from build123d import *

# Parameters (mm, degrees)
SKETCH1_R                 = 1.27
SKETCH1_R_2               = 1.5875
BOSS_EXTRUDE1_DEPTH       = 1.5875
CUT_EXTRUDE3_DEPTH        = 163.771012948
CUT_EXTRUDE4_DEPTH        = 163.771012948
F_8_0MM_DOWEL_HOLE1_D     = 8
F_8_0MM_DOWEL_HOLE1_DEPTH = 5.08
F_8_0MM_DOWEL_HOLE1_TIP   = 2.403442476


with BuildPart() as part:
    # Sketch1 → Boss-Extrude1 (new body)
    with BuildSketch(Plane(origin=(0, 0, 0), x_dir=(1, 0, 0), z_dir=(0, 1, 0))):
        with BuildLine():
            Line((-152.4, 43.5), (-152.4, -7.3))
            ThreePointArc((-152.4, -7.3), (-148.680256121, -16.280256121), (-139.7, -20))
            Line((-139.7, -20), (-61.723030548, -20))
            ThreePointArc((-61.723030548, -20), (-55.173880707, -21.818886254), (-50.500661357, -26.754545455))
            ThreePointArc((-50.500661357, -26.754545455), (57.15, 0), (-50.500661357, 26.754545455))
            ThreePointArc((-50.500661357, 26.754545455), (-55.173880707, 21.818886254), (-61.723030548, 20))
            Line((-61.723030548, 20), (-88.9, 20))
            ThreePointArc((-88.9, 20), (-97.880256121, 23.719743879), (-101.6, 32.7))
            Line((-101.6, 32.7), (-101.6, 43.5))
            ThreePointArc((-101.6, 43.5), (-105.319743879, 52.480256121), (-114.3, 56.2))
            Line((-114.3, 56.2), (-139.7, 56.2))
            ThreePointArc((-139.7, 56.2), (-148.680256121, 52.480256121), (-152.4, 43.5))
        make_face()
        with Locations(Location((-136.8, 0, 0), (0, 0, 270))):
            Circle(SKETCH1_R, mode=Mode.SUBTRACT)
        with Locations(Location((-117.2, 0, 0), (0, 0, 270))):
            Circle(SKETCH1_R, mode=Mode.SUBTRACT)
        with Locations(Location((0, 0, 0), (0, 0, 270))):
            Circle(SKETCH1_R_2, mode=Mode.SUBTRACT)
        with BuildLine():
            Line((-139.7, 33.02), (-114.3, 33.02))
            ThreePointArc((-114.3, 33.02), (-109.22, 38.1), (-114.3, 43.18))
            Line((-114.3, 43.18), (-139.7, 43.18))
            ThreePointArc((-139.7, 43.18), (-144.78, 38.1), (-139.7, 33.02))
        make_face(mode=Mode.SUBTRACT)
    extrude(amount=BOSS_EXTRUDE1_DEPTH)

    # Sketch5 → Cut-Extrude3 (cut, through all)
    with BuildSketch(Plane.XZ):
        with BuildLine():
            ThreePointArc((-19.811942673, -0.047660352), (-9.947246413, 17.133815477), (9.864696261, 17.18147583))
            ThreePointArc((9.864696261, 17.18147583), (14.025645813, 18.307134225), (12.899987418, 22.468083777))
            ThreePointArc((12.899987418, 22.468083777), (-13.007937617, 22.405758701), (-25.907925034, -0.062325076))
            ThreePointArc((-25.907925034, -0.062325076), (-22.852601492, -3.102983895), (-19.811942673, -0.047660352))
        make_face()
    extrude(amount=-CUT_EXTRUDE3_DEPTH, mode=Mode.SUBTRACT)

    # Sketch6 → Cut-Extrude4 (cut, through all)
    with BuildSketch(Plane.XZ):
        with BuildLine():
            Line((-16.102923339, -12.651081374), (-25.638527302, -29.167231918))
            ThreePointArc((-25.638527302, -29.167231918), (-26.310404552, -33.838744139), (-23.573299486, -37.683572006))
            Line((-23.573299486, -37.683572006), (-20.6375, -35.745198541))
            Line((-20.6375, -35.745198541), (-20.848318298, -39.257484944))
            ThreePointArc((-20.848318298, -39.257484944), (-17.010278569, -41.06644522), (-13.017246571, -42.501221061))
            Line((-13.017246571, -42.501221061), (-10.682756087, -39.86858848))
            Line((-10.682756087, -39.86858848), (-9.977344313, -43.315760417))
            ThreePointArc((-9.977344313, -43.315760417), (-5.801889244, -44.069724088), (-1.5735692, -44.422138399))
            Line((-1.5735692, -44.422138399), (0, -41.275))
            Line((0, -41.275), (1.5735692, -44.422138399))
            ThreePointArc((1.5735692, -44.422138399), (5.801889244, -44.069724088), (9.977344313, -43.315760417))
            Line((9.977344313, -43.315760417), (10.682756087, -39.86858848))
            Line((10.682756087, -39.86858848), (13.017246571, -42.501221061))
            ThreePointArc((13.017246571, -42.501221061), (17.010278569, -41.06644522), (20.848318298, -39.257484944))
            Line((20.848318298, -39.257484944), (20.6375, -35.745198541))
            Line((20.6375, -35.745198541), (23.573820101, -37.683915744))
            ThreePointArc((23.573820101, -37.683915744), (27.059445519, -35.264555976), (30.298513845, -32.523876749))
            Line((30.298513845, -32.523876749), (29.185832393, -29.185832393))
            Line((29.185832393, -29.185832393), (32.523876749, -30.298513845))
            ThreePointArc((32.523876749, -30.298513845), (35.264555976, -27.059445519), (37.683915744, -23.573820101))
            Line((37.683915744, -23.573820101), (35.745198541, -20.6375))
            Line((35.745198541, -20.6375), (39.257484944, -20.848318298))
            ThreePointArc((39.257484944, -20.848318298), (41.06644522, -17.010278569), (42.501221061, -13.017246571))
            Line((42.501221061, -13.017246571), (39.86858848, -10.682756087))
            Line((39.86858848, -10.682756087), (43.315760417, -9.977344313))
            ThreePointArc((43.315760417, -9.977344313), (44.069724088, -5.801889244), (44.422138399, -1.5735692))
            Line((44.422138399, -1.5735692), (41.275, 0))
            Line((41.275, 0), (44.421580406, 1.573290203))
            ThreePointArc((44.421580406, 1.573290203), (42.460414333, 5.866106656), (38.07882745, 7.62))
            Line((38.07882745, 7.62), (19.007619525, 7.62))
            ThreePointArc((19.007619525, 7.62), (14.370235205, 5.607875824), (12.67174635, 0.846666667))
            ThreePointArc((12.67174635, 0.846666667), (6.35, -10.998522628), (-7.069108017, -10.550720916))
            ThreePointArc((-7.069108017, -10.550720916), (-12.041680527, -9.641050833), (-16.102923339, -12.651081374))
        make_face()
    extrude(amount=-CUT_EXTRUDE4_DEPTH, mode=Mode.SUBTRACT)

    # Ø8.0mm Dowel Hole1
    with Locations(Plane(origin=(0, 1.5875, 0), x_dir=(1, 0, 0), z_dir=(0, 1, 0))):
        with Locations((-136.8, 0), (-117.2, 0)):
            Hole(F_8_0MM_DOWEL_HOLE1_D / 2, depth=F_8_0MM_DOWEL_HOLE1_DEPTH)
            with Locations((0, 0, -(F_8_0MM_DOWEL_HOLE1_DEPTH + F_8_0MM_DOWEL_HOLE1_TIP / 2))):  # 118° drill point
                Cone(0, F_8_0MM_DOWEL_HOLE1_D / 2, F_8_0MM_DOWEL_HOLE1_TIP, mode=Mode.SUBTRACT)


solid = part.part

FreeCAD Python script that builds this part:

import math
import FreeCAD as App
import Part
import Sketcher

V = App.Vector
Q = App.Units.Quantity

doc = App.newDocument("Part")
body = doc.addObject("PartDesign::Body", "Body")

# Sketch on XZ plane
sketch1 = body.newObject("Sketcher::SketchObject", "Sketch")
sketch1.AttachmentSupport = (doc.getObject("XZ_Plane"), [""])
sketch1.MapMode = "FlatFace"
sketch1.addGeometry([
    Part.LineSegment(V(-152.4, -43.5, 0), V(-152.4, 7.3, 0)),  # 0
    Part.ArcOfCircle(Part.Circle(V(-139.7, 7.3, 0), V(0, 0, 1), 12.7), math.radians(90), math.radians(180)),  # 1
    Part.LineSegment(V(-139.7, 20, 0), V(-61.7, 20, 0)),  # 2
    Part.ArcOfCircle(Part.Circle(V(-61.7, 32.7, 0), V(0, 0, 1), 12.7), math.radians(-90), math.radians(-28)),  # 3
    Part.ArcOfCircle(Part.Circle(V(0, 0, 0), V(0, 0, 1), 57.1), math.radians(-152), math.radians(152)),  # 4
    Part.ArcOfCircle(Part.Circle(V(-61.7, -32.7, 0), V(0, 0, 1), 12.7), math.radians(28), math.radians(90)),  # 5
    Part.LineSegment(V(-61.7, -20, 0), V(-88.9, -20, 0)),  # 6
    Part.ArcOfCircle(Part.Circle(V(-88.9, -32.7, 0), V(0, 0, 1), 12.7), math.radians(90), math.radians(180)),  # 7
    Part.LineSegment(V(-101.6, -32.7, 0), V(-101.6, -43.5, 0)),  # 8
    Part.ArcOfCircle(Part.Circle(V(-114.3, -43.5, 0), V(0, 0, 1), 12.7), math.radians(-90), math.radians(0)),  # 9
    Part.LineSegment(V(-114.3, -56.2, 0), V(-139.7, -56.2, 0)),  # 10
    Part.ArcOfCircle(Part.Circle(V(-139.7, -43.5, 0), V(0, 0, 1), 12.7), math.radians(180), math.radians(270)),  # 11
    Part.Circle(V(-136.8, 0, 0), V(0, 0, 1), 1.3),  # 12
    Part.Circle(V(-117.2, 0, 0), V(0, 0, 1), 1.3),  # 13
    Part.Circle(V(0, 0, 0), V(0, 0, 1), 1.6),  # 14
    Part.LineSegment(V(-114.3, -33, 0), V(-139.7, -33, 0)),  # 15
    Part.ArcOfCircle(Part.Circle(V(-139.7, -38.1, 0), V(0, 0, 1), 5.1), math.radians(90), math.radians(270)),  # 16
    Part.LineSegment(V(-139.7, -43.2, 0), V(-114.3, -43.2, 0)),  # 17
    Part.ArcOfCircle(Part.Circle(V(-114.3, -38.1, 0), V(0, 0, 1), 5.1), math.radians(-90), math.radians(90)),  # 18
], False)
sketch1.addConstraint([
    Sketcher.Constraint("Tangent", 0, 2, 1, 2),
    Sketcher.Constraint("Tangent", 1, 1, 2, 1),
    Sketcher.Constraint("Tangent", 2, 2, 3, 1),
    Sketcher.Constraint("Tangent", 3, 2, 4, 2),
    Sketcher.Constraint("Tangent", 4, 1, 5, 1),
    Sketcher.Constraint("Tangent", 5, 2, 6, 1),
    Sketcher.Constraint("Tangent", 6, 2, 7, 1),
    Sketcher.Constraint("Tangent", 7, 2, 8, 1),
    Sketcher.Constraint("Tangent", 8, 2, 9, 2),
    Sketcher.Constraint("Tangent", 9, 1, 10, 1),
    Sketcher.Constraint("Tangent", 10, 2, 11, 2),
    Sketcher.Constraint("Tangent", 11, 1, 0, 1),
    Sketcher.Constraint("Tangent", 15, 2, 16, 1),
    Sketcher.Constraint("Tangent", 16, 2, 17, 1),
    Sketcher.Constraint("Tangent", 17, 2, 18, 1),
    Sketcher.Constraint("Tangent", 18, 2, 15, 1),
    Sketcher.Constraint("Vertical", 0),
    Sketcher.Constraint("Horizontal", 2),
    Sketcher.Constraint("Horizontal", 6),
    Sketcher.Constraint("Vertical", 8),
    Sketcher.Constraint("Horizontal", 10),
    Sketcher.Constraint("Horizontal", 15),
    Sketcher.Constraint("Horizontal", 17),
    Sketcher.Constraint("Coincident", 4, 3, -1, 1),
    Sketcher.Constraint("Coincident", 14, 3, -1, 1),
    Sketcher.Constraint("Equal", 1, 3),
    Sketcher.Constraint("Equal", 3, 5),
    Sketcher.Constraint("Equal", 5, 7),
    Sketcher.Constraint("Equal", 7, 9),
    Sketcher.Constraint("Equal", 9, 11),
    Sketcher.Constraint("Equal", 12, 13),
    Sketcher.Constraint("PointOnObject", 12, 3, -1),
    Sketcher.Constraint("PointOnObject", 13, 3, -1),
    Sketcher.Constraint("Vertical", 3, 3, 5, 3),
    Sketcher.Constraint("Vertical", 11, 3, 16, 3),
    Sketcher.Constraint("Vertical", 9, 3, 18, 3),
    Sketcher.Constraint("Diameter", 12, Q("0.1 in")),
    Sketcher.Constraint("Radius", 1, Q("0.5 in")),
    Sketcher.Constraint("Radius", 16, Q("0.2 in")),
    Sketcher.Constraint("DistanceX", 10, 2, 10, 1, Q("1 in")),
    Sketcher.Constraint("DistanceY", 0, 1, 0, 2, Q("2 in")),
    Sketcher.Constraint("Radius", 4, Q("2.25 in")),
    Sketcher.Constraint("Diameter", 14, Q("0.125 in")),
    Sketcher.Constraint("DistanceX", 0, 2, -1, 1, Q("6 in")),
    Sketcher.Constraint("DistanceY", 16, 3, -1, 1, Q("1.5 in")),
    Sketcher.Constraint("DistanceY", 8, 2, 8, 1, 10.8),
    Sketcher.Constraint("DistanceX", 12, 3, -1, 1, 136.8),
    Sketcher.Constraint("DistanceX", 13, 3, -1, 1, 117.2),
])
pad1 = body.newObject("PartDesign::Pad", "Pad")
pad1.Profile = sketch1
pad1.Length = Q("0.0625 in")
pad1.Reversed = True

# Sketch on XZ plane
sketch2 = body.newObject("Sketcher::SketchObject", "Sketch001")
sketch2.AttachmentSupport = (doc.getObject("XZ_Plane"), [""])
sketch2.MapMode = "FlatFace"
sketch2.addGeometry([
    Part.ArcOfCircle(Part.Circle(V(0, 0, 0), V(0, 0, 1), 19.8), math.radians(60), math.radians(180)),
    Part.ArcOfCircle(Part.Circle(V(11.4, 19.8, 0), V(0, 0, 1), 3), math.radians(-120), math.radians(60)),
    Part.ArcOfCircle(Part.Circle(V(0, 0, 0), V(0, 0, 1), 25.9), math.radians(60), math.radians(180)),
    Part.ArcOfCircle(Part.Circle(V(-22.9, -0.1, 0), V(0, 0, 1), 3), math.radians(-180), math.radians(0)),
], False)
sketch2.addConstraint([
    Sketcher.Constraint("Tangent", 0, 1, 1, 1),
    Sketcher.Constraint("Tangent", 1, 2, 2, 1),
    Sketcher.Constraint("Tangent", 2, 2, 3, 1),
    Sketcher.Constraint("Tangent", 3, 2, 0, 2),
    Sketcher.Constraint("Coincident", 0, 3, -1, 1),
    Sketcher.Constraint("Coincident", 2, 3, -1, 1),
    Sketcher.Constraint("Radius", 0, Q("0.78 in")),
    Sketcher.Constraint("Radius", 1, Q("0.12 in")),
    Sketcher.Constraint("DistanceY", 2, 2, 0, 1, 17.243801),
    Sketcher.Constraint("DistanceX", -1, 1, 1, 3, 11.382342),
])
pocket1 = body.newObject("PartDesign::Pocket", "Pocket")
pocket1.Profile = sketch2
pocket1.Type = "ThroughAll"

# Sketch on XZ plane
sketch3 = body.newObject("Sketcher::SketchObject", "Sketch002")
sketch3.AttachmentSupport = (doc.getObject("XZ_Plane"), [""])
sketch3.MapMode = "FlatFace"
sketch3.addGeometry([
    Part.LineSegment(V(-16.1, -12.7, 0), V(-25.6, -29.2, 0)),  # 0
    Part.ArcOfCircle(Part.Circle(V(-20.1, -32.3, 0), V(0, 0, 1), 6.3), math.radians(150), math.radians(237)),  # 1
    Part.LineSegment(V(-23.6, -37.7, 0), V(-20.6, -35.7, 0)),  # 2
    Part.LineSegment(V(-20.6, -35.7, 0), V(-20.8, -39.3, 0)),  # 3
    Part.ArcOfCircle(Part.Circle(V(0, 0, 0), V(0, 0, 1), 44.4), math.radians(-117.97), math.radians(-107.03)),  # 4
    Part.LineSegment(V(-13, -42.5, 0), V(-10.7, -39.9, 0)),  # 5
    Part.LineSegment(V(-10.7, -39.9, 0), V(-10, -43.3, 0)),  # 6
    Part.ArcOfCircle(Part.Circle(V(0, 0, 0), V(0, 0, 1), 44.5), math.radians(-102.97), math.radians(-92.03)),  # 7
    Part.LineSegment(V(-1.6, -44.4, 0), V(0, -41.3, 0)),  # 8
    Part.LineSegment(V(0, -41.3, 0), V(1.6, -44.4, 0)),  # 9
    Part.ArcOfCircle(Part.Circle(V(0, 0, 0), V(0, 0, 1), 44.5), math.radians(-87.97), math.radians(-77.03)),  # 10
    Part.LineSegment(V(10, -43.3, 0), V(10.7, -39.9, 0)),  # 11
    Part.LineSegment(V(10.7, -39.9, 0), V(13, -42.5, 0)),  # 12
    Part.ArcOfCircle(Part.Circle(V(0, 0, 0), V(0, 0, 1), 44.4), math.radians(-72.97), math.radians(-62.03)),  # 13
    Part.LineSegment(V(20.8, -39.3, 0), V(20.6, -35.7, 0)),  # 14
    Part.LineSegment(V(20.6, -35.7, 0), V(23.6, -37.7, 0)),  # 15
    Part.ArcOfCircle(Part.Circle(V(0, 0, 0), V(0, 0, 1), 44.4), math.radians(-57.97), math.radians(-47.03)),  # 16
    Part.LineSegment(V(30.3, -32.5, 0), V(29.2, -29.2, 0)),  # 17
    Part.LineSegment(V(29.2, -29.2, 0), V(32.5, -30.3, 0)),  # 18
    Part.ArcOfCircle(Part.Circle(V(0, 0, 0), V(0, 0, 1), 44.4), math.radians(-42.97), math.radians(-32.03)),  # 19
    Part.LineSegment(V(37.7, -23.6, 0), V(35.7, -20.6, 0)),  # 20
    Part.LineSegment(V(35.7, -20.6, 0), V(39.3, -20.8, 0)),  # 21
    Part.ArcOfCircle(Part.Circle(V(0, 0, 0), V(0, 0, 1), 44.4), math.radians(-27.97), math.radians(-17.03)),  # 22
    Part.LineSegment(V(42.5, -13, 0), V(39.9, -10.7, 0)),  # 23
    Part.LineSegment(V(39.9, -10.7, 0), V(43.3, -10, 0)),  # 24
    Part.ArcOfCircle(Part.Circle(V(0, 0, 0), V(0, 0, 1), 44.5), math.radians(-12.97), math.radians(-2.03)),  # 25
    Part.LineSegment(V(44.4, -1.6, 0), V(41.3, 0, 0)),  # 26
    Part.LineSegment(V(41.3, 0, 0), V(44.4, 1.6, 0)),  # 27
    Part.ArcOfCircle(Part.Circle(V(38.1, 1.3, 0), V(0, 0, 1), 6.3), math.radians(3), math.radians(90)),  # 28
    Part.LineSegment(V(38.1, 7.6, 0), V(19, 7.6, 0)),  # 29
    Part.ArcOfCircle(Part.Circle(V(19, 1.3, 0), V(0, 0, 1), 6.4), math.radians(90), math.radians(184)),  # 30
    Part.ArcOfCircle(Part.Circle(V(0, 0, 0), V(0, 0, 1), 12.7), math.radians(-124), math.radians(4)),  # 31
    Part.ArcOfCircle(Part.Circle(V(-10.6, -15.8, 0), V(0, 0, 1), 6.3), math.radians(56), math.radians(150)),  # 32
], False)
sketch3.addConstraint([
    Sketcher.Constraint("Tangent", 0, 2, 1, 1),
    Sketcher.Constraint("Coincident", 1, 2, 2, 1),
    Sketcher.Constraint("Coincident", 2, 2, 3, 1),
    Sketcher.Constraint("Coincident", 3, 2, 4, 1),
    Sketcher.Constraint("Coincident", 4, 2, 5, 1),
    Sketcher.Constraint("Coincident", 5, 2, 6, 1),
    Sketcher.Constraint("Coincident", 6, 2, 7, 1),
    Sketcher.Constraint("Coincident", 7, 2, 8, 1),
    Sketcher.Constraint("Coincident", 8, 2, 9, 1),
    Sketcher.Constraint("Coincident", 9, 2, 10, 1),
    Sketcher.Constraint("Coincident", 10, 2, 11, 1),
    Sketcher.Constraint("Coincident", 11, 2, 12, 1),
    Sketcher.Constraint("Coincident", 12, 2, 13, 1),
    Sketcher.Constraint("Coincident", 13, 2, 14, 1),
    Sketcher.Constraint("Coincident", 14, 2, 15, 1),
    Sketcher.Constraint("Coincident", 15, 2, 16, 1),
    Sketcher.Constraint("Coincident", 16, 2, 17, 1),
    Sketcher.Constraint("Coincident", 17, 2, 18, 1),
    Sketcher.Constraint("Coincident", 18, 2, 19, 1),
    Sketcher.Constraint("Coincident", 19, 2, 20, 1),
    Sketcher.Constraint("Coincident", 20, 2, 21, 1),
    Sketcher.Constraint("Coincident", 21, 2, 22, 1),
    Sketcher.Constraint("Coincident", 22, 2, 23, 1),
    Sketcher.Constraint("Coincident", 23, 2, 24, 1),
    Sketcher.Constraint("Coincident", 24, 2, 25, 1),
    Sketcher.Constraint("Coincident", 25, 2, 26, 1),
    Sketcher.Constraint("Coincident", 26, 2, 27, 1),
    Sketcher.Constraint("Coincident", 27, 2, 28, 1),
    Sketcher.Constraint("Tangent", 28, 2, 29, 1),
    Sketcher.Constraint("Tangent", 29, 2, 30, 1),
    Sketcher.Constraint("Tangent", 30, 2, 31, 2),
    Sketcher.Constraint("Tangent", 31, 1, 32, 1),
    Sketcher.Constraint("Tangent", 32, 2, 0, 1),
    Sketcher.Constraint("Horizontal", 29),
    Sketcher.Constraint("Coincident", 4, 3, -1, 1),
    Sketcher.Constraint("Coincident", 7, 3, -1, 1),
    Sketcher.Constraint("Coincident", 10, 3, -1, 1),
    Sketcher.Constraint("Coincident", 13, 3, -1, 1),
    Sketcher.Constraint("Coincident", 16, 3, -1, 1),
    Sketcher.Constraint("Coincident", 19, 3, -1, 1),
    Sketcher.Constraint("Coincident", 22, 3, -1, 1),
    Sketcher.Constraint("Coincident", 25, 3, -1, 1),
    Sketcher.Constraint("Coincident", 31, 3, -1, 1),
    Sketcher.Constraint("Equal", 4, 7),
    Sketcher.Constraint("Equal", 7, 10),
    Sketcher.Constraint("Equal", 10, 13),
    Sketcher.Constraint("Equal", 13, 16),
    Sketcher.Constraint("Equal", 16, 19),
    Sketcher.Constraint("Equal", 19, 22),
    Sketcher.Constraint("Equal", 22, 25),
    Sketcher.Constraint("Equal", 1, 28),
    Sketcher.Constraint("Equal", 28, 30),
    Sketcher.Constraint("Equal", 30, 32),
    Sketcher.Constraint("Symmetric", 5, 2, 11, 2, -2),
    Sketcher.Constraint("Symmetric", 2, 2, 14, 2, -2),
    Sketcher.Constraint("PointOnObject", 8, 2, -2),
    Sketcher.Constraint("PointOnObject", 26, 2, -1),
    Sketcher.Constraint("Perpendicular", 2, 20),
    Sketcher.Constraint("Perpendicular", 3, 21),
    Sketcher.Constraint("Perpendicular", 5, 23),
    Sketcher.Constraint("Perpendicular", 6, 24),
    Sketcher.Constraint("Perpendicular", 8, 26),
    Sketcher.Constraint("Perpendicular", 9, 27),
    Sketcher.Constraint("Horizontal", 7, 2, 9, 2),
    Sketcher.Constraint("Horizontal", 6, 2, 10, 2),
    Sketcher.Constraint("Horizontal", 4, 2, 12, 2),
    Sketcher.Constraint("Horizontal", 3, 2, 13, 2),
    Sketcher.Constraint("Equal", 3, 5),
    Sketcher.Constraint("Equal", 5, 6),
    Sketcher.Constraint("Equal", 6, 8),
    Sketcher.Constraint("Equal", 14, 15),
    Sketcher.Constraint("Equal", 15, 17),
    Sketcher.Constraint("Equal", 17, 18),
    Sketcher.Constraint("Equal", 18, 20),
    Sketcher.Constraint("Equal", 20, 21),
    Sketcher.Constraint("Equal", 21, 23),
    Sketcher.Constraint("Equal", 23, 24),
    Sketcher.Constraint("Equal", 24, 26),
    Sketcher.Constraint("Equal", 2, 27),
    Sketcher.Constraint("Radius", 31, Q("0.5 in")),
    Sketcher.Constraint("Radius", 1, Q("0.25 in")),
    Sketcher.Constraint("Radius", 4, Q("1.75 in")),
    Sketcher.Constraint("Angle", 0, Q("-120 deg")),
    Sketcher.Constraint("DistanceY", -1, 1, 28, 2, Q("0.3 in")),
    Sketcher.Constraint("DistanceX", 2, 2, -1, 1, Q("0.8125 in")),
    Sketcher.Constraint("DistanceY", 8, 2, -1, 1, Q("1.625 in")),
    Sketcher.Constraint("DistanceY", 20, 2, -1, 1, Q("0.8125 in")),
    Sketcher.Constraint("DistanceX", 3, 2, -1, 1, Q("0.8207999 in")),
    Sketcher.Constraint("DistanceX", 1, 2, -1, 1, 23.573299),
    Sketcher.Constraint("DistanceY", 2, 2, -1, 1, 35.745199),
    Sketcher.Constraint("DistanceX", 5, 2, 10, 2, 20.6601),
    Sketcher.Constraint("DistanceY", 15, 2, 18, 2, 7.385402),
    Sketcher.Constraint("DistanceX", 16, 2, 19, 2, 7.385402),
    Sketcher.Constraint("DistanceY", 1, 3, -1, 1, 32.342232),
    Sketcher.Constraint("DistanceY", 4, 2, -1, 1, 42.501221),
])
pocket2 = body.newObject("PartDesign::Pocket", "Pocket001")
pocket2.Profile = sketch3
pocket2.Type = "ThroughAll"

# Sketch on XZ plane
sketch4 = body.newObject("Sketcher::SketchObject", "Sketch003")
sketch4.AttachmentSupport = (doc.getObject("XZ_Plane"), [""])
sketch4.MapMode = "FlatFace"
sketch4.AttachmentOffset = App.Placement(V(0, 0, -0.0625 * 25.4), App.Rotation())
sketch4.addGeometry([
    Part.Circle(V(-136.8, 0, 0), V(0, 0, 1), 4),
    Part.Circle(V(-117.2, 0, 0), V(0, 0, 1), 4),
], False)
sketch4.addConstraint([
    Sketcher.Constraint("Equal", 0, 1),
    Sketcher.Constraint("PointOnObject", 0, 3, -1),
    Sketcher.Constraint("PointOnObject", 1, 3, -1),
    Sketcher.Constraint("Diameter", 0, 8.0),
    Sketcher.Constraint("DistanceX", 0, 3, -1, 1, 136.8),
    Sketcher.Constraint("DistanceX", 1, 3, -1, 1, 117.2),
])
doc.recompute()
hole = body.newObject("PartDesign::Hole", "Hole")
hole.Profile = sketch4
hole.ThreadType = "None"
hole.Diameter = 8
hole.DepthType = "Dimension"
hole.Depth = Q("0.2 in")
hole.DrillPoint = "Angled"
hole.DrillPointAngle = 118
hole.Reversed = True

doc.recompute()
